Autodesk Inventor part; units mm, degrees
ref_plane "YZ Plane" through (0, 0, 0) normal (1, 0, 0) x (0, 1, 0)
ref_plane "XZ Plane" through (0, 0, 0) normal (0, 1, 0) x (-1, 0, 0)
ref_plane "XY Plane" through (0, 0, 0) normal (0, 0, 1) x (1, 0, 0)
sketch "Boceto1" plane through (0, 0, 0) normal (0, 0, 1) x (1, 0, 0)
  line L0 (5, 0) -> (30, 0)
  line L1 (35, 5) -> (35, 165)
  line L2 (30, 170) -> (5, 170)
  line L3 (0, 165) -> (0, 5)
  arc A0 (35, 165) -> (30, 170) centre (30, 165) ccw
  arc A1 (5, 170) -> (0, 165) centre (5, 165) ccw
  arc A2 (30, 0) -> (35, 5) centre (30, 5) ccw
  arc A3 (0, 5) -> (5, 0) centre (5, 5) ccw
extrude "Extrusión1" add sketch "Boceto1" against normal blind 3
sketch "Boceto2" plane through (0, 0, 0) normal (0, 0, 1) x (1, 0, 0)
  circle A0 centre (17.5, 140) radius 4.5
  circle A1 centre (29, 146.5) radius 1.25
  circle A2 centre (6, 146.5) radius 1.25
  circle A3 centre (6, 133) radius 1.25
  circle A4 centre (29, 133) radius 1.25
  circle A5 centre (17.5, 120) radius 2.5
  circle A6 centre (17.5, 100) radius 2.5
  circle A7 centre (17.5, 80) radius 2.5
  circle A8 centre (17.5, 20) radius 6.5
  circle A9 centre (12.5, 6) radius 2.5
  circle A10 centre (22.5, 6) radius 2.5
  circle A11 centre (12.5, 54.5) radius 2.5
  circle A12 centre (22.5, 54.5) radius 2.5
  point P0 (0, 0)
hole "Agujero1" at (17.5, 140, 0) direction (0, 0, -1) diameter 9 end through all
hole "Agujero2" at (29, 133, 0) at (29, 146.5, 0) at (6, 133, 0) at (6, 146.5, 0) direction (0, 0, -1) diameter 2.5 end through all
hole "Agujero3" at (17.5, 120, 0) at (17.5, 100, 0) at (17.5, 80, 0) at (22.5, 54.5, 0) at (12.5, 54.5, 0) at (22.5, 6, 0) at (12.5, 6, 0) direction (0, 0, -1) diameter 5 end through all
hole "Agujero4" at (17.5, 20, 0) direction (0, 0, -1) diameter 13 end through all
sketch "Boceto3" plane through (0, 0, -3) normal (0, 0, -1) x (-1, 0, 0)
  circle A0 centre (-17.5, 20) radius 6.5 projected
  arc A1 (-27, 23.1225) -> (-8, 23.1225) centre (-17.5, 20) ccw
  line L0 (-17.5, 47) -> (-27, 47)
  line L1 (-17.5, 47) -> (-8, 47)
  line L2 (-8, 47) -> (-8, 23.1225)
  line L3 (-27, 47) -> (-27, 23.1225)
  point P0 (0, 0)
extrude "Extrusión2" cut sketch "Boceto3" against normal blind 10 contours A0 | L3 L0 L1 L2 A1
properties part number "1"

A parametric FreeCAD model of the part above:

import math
import FreeCAD as App
import Part
import Sketcher

V = App.Vector
Q = App.Units.Quantity

doc = App.newDocument("Part")
params = doc.addObject("Spreadsheet::Sheet", "Params")
for row, (alias, value) in enumerate([
    ("sketch1_radius", "5 mm"),
    ("sketch1_width", "25 mm"),
    ("sketch1_height", "160 mm"),
    ("pad1_length", "3 mm"),
    ("sketch2_diameter", "9 mm"),
    ("hole_diameter", "9 mm"),
    ("sketch3_diameter", "2.5 mm"),
    ("hole2_diameter", "2.5 mm"),
    ("sketch4_diameter", "5 mm"),
    ("hole3_diameter", "5 mm"),
    ("sketch5_diameter", "13 mm"),
    ("hole4_diameter", "13 mm"),
    ("sketch6_radius", "10 mm"),
    ("sketch6_width", "19 mm"),
    ("pocket1_length", "10 mm"),
], start=1):
    params.set(f"A{row}", alias)
    params.set(f"B{row}", "=" + value)
    params.setAlias(f"B{row}", alias)

body = doc.addObject("PartDesign::Body", "Body")

# Sketch on XY plane
sketch1 = body.newObject("Sketcher::SketchObject", "Sketch")
sketch1.AttachmentSupport = (doc.getObject("XY_Plane"), [""])
sketch1.MapMode = "FlatFace"
sketch1.addGeometry(Part.ArcOfCircle(Part.Circle(V(5, 5, 0), V(0, 0, 1), 5), math.radians(180), math.radians(270)), False)
sketch1.addGeometry(Part.LineSegment(V(5, 0, 0), V(30, 0, 0)), False)
sketch1.addGeometry(Part.ArcOfCircle(Part.Circle(V(30, 5, 0), V(0, 0, 1), 5), math.radians(-90), math.radians(0)), False)
sketch1.addGeometry(Part.LineSegment(V(35, 5, 0), V(35, 165, 0)), False)
sketch1.addGeometry(Part.ArcOfCircle(Part.Circle(V(30, 165, 0), V(0, 0, 1), 5), math.radians(0), math.radians(90)), False)
sketch1.addGeometry(Part.LineSegment(V(30, 170, 0), V(5, 170, 0)), False)
sketch1.addGeometry(Part.ArcOfCircle(Part.Circle(V(5, 165, 0), V(0, 0, 1), 5), math.radians(90), math.radians(180)), False)
sketch1.addGeometry(Part.LineSegment(V(0, 165, 0), V(0, 5, 0)), False)
sketch1.addConstraint(Sketcher.Constraint("Tangent", 0, 2, 1, 1))
sketch1.addConstraint(Sketcher.Constraint("Tangent", 1, 2, 2, 1))
sketch1.addConstraint(Sketcher.Constraint("Tangent", 2, 2, 3, 1))
sketch1.addConstraint(Sketcher.Constraint("Tangent", 3, 2, 4, 1))
sketch1.addConstraint(Sketcher.Constraint("Tangent", 4, 2, 5, 1))
sketch1.addConstraint(Sketcher.Constraint("Tangent", 5, 2, 6, 1))
sketch1.addConstraint(Sketcher.Constraint("Tangent", 6, 2, 7, 1))
sketch1.addConstraint(Sketcher.Constraint("Tangent", 7, 2, 0, 1))
sketch1.addConstraint(Sketcher.Constraint("Horizontal", 1))
sketch1.addConstraint(Sketcher.Constraint("Vertical", 3))
sketch1.addConstraint(Sketcher.Constraint("Horizontal", 5))
sketch1.addConstraint(Sketcher.Constraint("Vertical", 7))
sketch1.addConstraint(Sketcher.Constraint("Equal", 0, 2))
sketch1.addConstraint(Sketcher.Constraint("Equal", 2, 4))
sketch1.addConstraint(Sketcher.Constraint("Equal", 4, 6))
sketch1.addConstraint(Sketcher.Constraint("PointOnObject", 0, 2, -1))
sketch1.addConstraint(Sketcher.Constraint("PointOnObject", 6, 2, -2))
sketch1.addConstraint(Sketcher.Constraint("Radius", 0, Q("5 mm")))
sketch1.addConstraint(Sketcher.Constraint("DistanceX", 1, 1, 1, 2, Q("25 mm")))
sketch1.addConstraint(Sketcher.Constraint("DistanceY", 3, 1, 3, 2, Q("160 mm")))
sketch1.setExpression("Constraints[17]", "Params.sketch1_radius")
sketch1.setExpression("Constraints[18]", "Params.sketch1_width")
sketch1.setExpression("Constraints[19]", "Params.sketch1_height")
pad1 = body.newObject("PartDesign::Pad", "Pad")
pad1.Profile = sketch1
pad1.setExpression("Length", "Params.pad1_length")
pad1.Reversed = True

# Sketch on XY plane
sketch2 = body.newObject("Sketcher::SketchObject", "Sketch001")
sketch2.AttachmentSupport = (doc.getObject("XY_Plane"), [""])
sketch2.MapMode = "FlatFace"
sketch2.addGeometry(Part.Circle(V(17.5, 140, 0), V(0, 0, 1), 4.5), False)
sketch2.addConstraint(Sketcher.Constraint("Diameter", 0, Q("9 mm")))
sketch2.addConstraint(Sketcher.Constraint("DistanceY", -1, 1, 0, 3, Q("140 mm")))
sketch2.addConstraint(Sketcher.Constraint("DistanceX", -1, 1, 0, 3, Q("17.5 mm")))
sketch2.setExpression("Constraints[0]", "Params.sketch2_diameter")
doc.recompute()
hole = body.newObject("PartDesign::Hole", "Hole")
hole.Profile = sketch2
hole.ThreadType = "None"
hole.setExpression("Diameter", "Params.hole_diameter")
hole.DepthType = "ThroughAll"

# Sketch on XY plane
sketch3 = body.newObject("Sketcher::SketchObject", "Sketch002")
sketch3.AttachmentSupport = (doc.getObject("XY_Plane"), [""])
sketch3.MapMode = "FlatFace"
sketch3.addGeometry(Part.Circle(V(29, 133, 0), V(0, 0, 1), 1.2), False)
sketch3.addGeometry(Part.Circle(V(29, 146.5, 0), V(0, 0, 1), 1.2), False)
sketch3.addGeometry(Part.Circle(V(6, 133, 0), V(0, 0, 1), 1.2), False)
sketch3.addGeometry(Part.Circle(V(6, 146.5, 0), V(0, 0, 1), 1.2), False)
sketch3.addConstraint(Sketcher.Constraint("Equal", 0, 1))
sketch3.addConstraint(Sketcher.Constraint("Equal", 1, 2))
sketch3.addConstraint(Sketcher.Constraint("Equal", 2, 3))
sketch3.addConstraint(Sketcher.Constraint("Horizontal", 0, 3, 2, 3))
sketch3.addConstraint(Sketcher.Constraint("Horizontal", 1, 3, 3, 3))
sketch3.addConstraint(Sketcher.Constraint("Vertical", 0, 3, 1, 3))
sketch3.addConstraint(Sketcher.Constraint("Vertical", 2, 3, 3, 3))
sketch3.addConstraint(Sketcher.Constraint("Diameter", 0, Q("2.5 mm")))
sketch3.addConstraint(Sketcher.Constraint("DistanceX", -1, 1, 0, 3, Q("29 mm")))
sketch3.addConstraint(Sketcher.Constraint("DistanceY", -1, 1, 0, 3, Q("133 mm")))
sketch3.addConstraint(Sketcher.Constraint("DistanceX", -1, 1, 2, 3, Q("6 mm")))
sketch3.addConstraint(Sketcher.Constraint("DistanceY", -1, 1, 1, 3, Q("146.5 mm")))
sketch3.setExpression("Constraints[7]", "Params.sketch3_diameter")
doc.recompute()
hole2 = body.newObject("PartDesign::Hole", "Hole001")
hole2.Profile = sketch3
hole2.ThreadType = "None"
hole2.setExpression("Diameter", "Params.hole2_diameter")
hole2.DepthType = "ThroughAll"

# Sketch on XY plane
sketch4 = body.newObject("Sketcher::SketchObject", "Sketch003")
sketch4.AttachmentSupport = (doc.getObject("XY_Plane"), [""])
sketch4.MapMode = "FlatFace"
sketch4.addGeometry(Part.Circle(V(17.5, 120, 0), V(0, 0, 1), 2.5), False)
sketch4.addGeometry(Part.Circle(V(17.5, 100, 0), V(0, 0, 1), 2.5), False)
sketch4.addGeometry(Part.Circle(V(17.5, 80, 0), V(0, 0, 1), 2.5), False)
sketch4.addGeometry(Part.Circle(V(22.5, 54.5, 0), V(0, 0, 1), 2.5), False)
sketch4.addGeometry(Part.Circle(V(12.5, 54.5, 0), V(0, 0, 1), 2.5), False)
sketch4.addGeometry(Part.Circle(V(22.5, 6, 0), V(0, 0, 1), 2.5), False)
sketch4.addGeometry(Part.Circle(V(12.5, 6, 0), V(0, 0, 1), 2.5), False)
sketch4.addConstraint(Sketcher.Constraint("Equal", 0, 1))
sketch4.addConstraint(Sketcher.Constraint("Equal", 1, 2))
sketch4.addConstraint(Sketcher.Constraint("Equal", 2, 3))
sketch4.addConstraint(Sketcher.Constraint("Equal", 3, 4))
sketch4.addConstraint(Sketcher.Constraint("Equal", 4, 5))
sketch4.addConstraint(Sketcher.Constraint("Equal", 5, 6))
sketch4.addConstraint(Sketcher.Constraint("Horizontal", 3, 3, 4, 3))
sketch4.addConstraint(Sketcher.Constraint("Horizontal", 5, 3, 6, 3))
sketch4.addConstraint(Sketcher.Constraint("Vertical", 0, 3, 1, 3))
sketch4.addConstraint(Sketcher.Constraint("Vertical", 1, 3, 2, 3))
sketch4.addConstraint(Sketcher.Constraint("Vertical", 3, 3, 5, 3))
sketch4.addConstraint(Sketcher.Constraint("Vertical", 4, 3, 6, 3))
sketch4.addConstraint(Sketcher.Constraint("Diameter", 0, Q("5 mm")))
sketch4.addConstraint(Sketcher.Constraint("DistanceY", -1, 1, 0, 3, Q("120 mm")))
sketch4.addConstraint(Sketcher.Constraint("DistanceY", -1, 1, 1, 3, Q("100 mm")))
sketch4.addConstraint(Sketcher.Constraint("DistanceY", -1, 1, 2, 3, Q("80 mm")))
sketch4.addConstraint(Sketcher.Constraint("DistanceY", -1, 1, 5, 3, Q("6 mm")))
sketch4.addConstraint(Sketcher.Constraint("DistanceX", 2, 3, 3, 3, Q("5 mm")))
sketch4.addConstraint(Sketcher.Constraint("DistanceX", 4, 3, 3, 3, Q("10 mm")))
sketch4.addConstraint(Sketcher.Constraint("DistanceX", -1, 1, 0, 3, Q("17.5 mm")))
sketch4.addConstraint(Sketcher.Constraint("DistanceY", -1, 1, 3, 3, Q("54.5 mm")))
sketch4.setExpression("Constraints[12]", "Params.sketch4_diameter")
doc.recompute()
hole3 = body.newObject("PartDesign::Hole", "Hole002")
hole3.Profile = sketch4
hole3.ThreadType = "None"
hole3.setExpression("Diameter", "Params.hole3_diameter")
hole3.DepthType = "ThroughAll"

# Sketch on XY plane
sketch5 = body.newObject("Sketcher::SketchObject", "Sketch004")
sketch5.AttachmentSupport = (doc.getObject("XY_Plane"), [""])
sketch5.MapMode = "FlatFace"
sketch5.addGeometry(Part.Circle(V(18, 20, 0), V(0, 0, 1), 6), False)
sketch5.addConstraint(Sketcher.Constraint("Diameter", 0, Q("13 mm")))
sketch5.addConstraint(Sketcher.Constraint("DistanceY", -1, 1, 0, 3, Q("20 mm")))
sketch5.addConstraint(Sketcher.Constraint("DistanceX", -1, 1, 0, 3, Q("17.5 mm")))
sketch5.setExpression("Constraints[0]", "Params.sketch5_diameter")
doc.recompute()
hole4 = body.newObject("PartDesign::Hole", "Hole003")
hole4.Profile = sketch5
hole4.ThreadType = "None"
hole4.setExpression("Diameter", "Params.hole4_diameter")
hole4.DepthType = "ThroughAll"

# Sketch on XY plane
sketch6 = body.newObject("Sketcher::SketchObject", "Sketch005")
sketch6.AttachmentSupport = (doc.getObject("XY_Plane"), [""])
sketch6.MapMode = "FlatFace"
sketch6.AttachmentOffset = App.Placement(V(0, 0, -3), App.Rotation())
sketch6.addGeometry(Part.LineSegment(V(27, 47, 0), V(27, 23, 0)), False)
sketch6.addGeometry(Part.ArcOfCircle(Part.Circle(V(18, 20, 0), V(0, 0, 1), 10), math.radians(162), math.radians(378)), False)
sketch6.addGeometry(Part.LineSegment(V(8, 23, 0), V(8, 47, 0)), False)
sketch6.addGeometry(Part.LineSegment(V(8, 47, 0), V(27, 47, 0)), False)
sketch6.addConstraint(Sketcher.Constraint("Coincident", 0, 2, 1, 2))
sketch6.addConstraint(Sketcher.Constraint("Coincident", 1, 1, 2, 1))
sketch6.addConstraint(Sketcher.Constraint("Coincident", 2, 2, 3, 1))
sketch6.addConstraint(Sketcher.Constraint("Coincident", 3, 2, 0, 1))
sketch6.addConstraint(Sketcher.Constraint("Vertical", 0))
sketch6.addConstraint(Sketcher.Constraint("Vertical", 2))
sketch6.addConstraint(Sketcher.Constraint("Horizontal", 3))
sketch6.addConstraint(Sketcher.Constraint("Horizontal", 0, 2, 1, 1))
sketch6.addConstraint(Sketcher.Constraint("Radius", 1, Q("10 mm")))
sketch6.addConstraint(Sketcher.Constraint("DistanceX", 3, 1, 3, 2, Q("19 mm")))
sketch6.addConstraint(Sketcher.Constraint("DistanceY", -1, 1, 1, 3, Q("20 mm")))
sketch6.addConstraint(Sketcher.Constraint("DistanceX", -1, 1, 0, 2, Q("27 mm")))
sketch6.addConstraint(Sketcher.Constraint("DistanceY", -1, 1, 2, 2, Q("47 mm")))
sketch6.setExpression("Constraints[8]", "Params.sketch6_radius")
sketch6.setExpression("Constraints[9]", "Params.sketch6_width")
pocket1 = body.newObject("PartDesign::Pocket", "Pocket")
pocket1.Profile = sketch6
pocket1.setExpression("Length", "Params.pocket1_length")
pocket1.Reversed = True

doc.recompute()
